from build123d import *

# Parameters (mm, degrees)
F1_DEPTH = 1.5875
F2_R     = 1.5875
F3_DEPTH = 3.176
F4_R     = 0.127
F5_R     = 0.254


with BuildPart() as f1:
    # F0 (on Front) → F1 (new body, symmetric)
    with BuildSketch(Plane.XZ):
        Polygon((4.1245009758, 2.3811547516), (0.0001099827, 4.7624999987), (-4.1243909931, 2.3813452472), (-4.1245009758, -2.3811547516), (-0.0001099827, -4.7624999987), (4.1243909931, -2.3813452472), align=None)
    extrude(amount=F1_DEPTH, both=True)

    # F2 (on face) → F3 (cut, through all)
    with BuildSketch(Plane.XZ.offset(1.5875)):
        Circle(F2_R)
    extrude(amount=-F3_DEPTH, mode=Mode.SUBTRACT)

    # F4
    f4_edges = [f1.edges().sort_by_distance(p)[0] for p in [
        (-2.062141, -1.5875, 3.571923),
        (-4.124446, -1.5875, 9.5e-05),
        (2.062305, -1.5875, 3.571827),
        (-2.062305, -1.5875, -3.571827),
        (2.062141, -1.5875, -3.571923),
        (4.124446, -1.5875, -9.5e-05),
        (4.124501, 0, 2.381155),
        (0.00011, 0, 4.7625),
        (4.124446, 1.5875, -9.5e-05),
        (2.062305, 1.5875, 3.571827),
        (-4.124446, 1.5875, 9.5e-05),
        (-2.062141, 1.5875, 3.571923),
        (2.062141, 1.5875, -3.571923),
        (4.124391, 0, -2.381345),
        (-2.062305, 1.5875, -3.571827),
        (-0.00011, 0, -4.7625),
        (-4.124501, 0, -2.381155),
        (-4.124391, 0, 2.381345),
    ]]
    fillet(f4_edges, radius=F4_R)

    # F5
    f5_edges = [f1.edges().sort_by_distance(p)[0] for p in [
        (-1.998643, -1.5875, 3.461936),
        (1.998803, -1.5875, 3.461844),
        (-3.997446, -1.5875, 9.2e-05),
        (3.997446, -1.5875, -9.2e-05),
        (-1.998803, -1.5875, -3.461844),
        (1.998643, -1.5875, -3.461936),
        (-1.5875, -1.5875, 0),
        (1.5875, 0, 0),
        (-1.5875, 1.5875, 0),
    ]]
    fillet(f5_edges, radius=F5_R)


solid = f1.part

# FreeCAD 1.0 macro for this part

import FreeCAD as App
import Part
import Sketcher
from FreeCAD import Vector
Q = App.Units.Quantity


def edges_at(feature, points):
    """Names of the edges that pass closest to the given points."""
    edges = feature.Shape.Edges
    near = lambda p: min(range(len(edges)), key=lambda i: edges[i].distToShape(Part.Vertex(*p))[0])
    return sorted({f"Edge{near(p) + 1}" for p in points})


def add_polygon(sketch, points):
    """Adds a closed chain of lines whose ends are joined by coincident constraints."""
    first, n = sketch.GeometryCount, len(points)
    for a, b in zip(points, points[1:] + points[:1]):
        sketch.addGeometry(Part.LineSegment(App.Vector(*a, 0), App.Vector(*b, 0)), False)
    for i in range(n):
        sketch.addConstraint(Sketcher.Constraint("Coincident", first + i, 2, first + (i + 1) % n, 1))

doc = App.newDocument("Part")
body = doc.addObject("PartDesign::Body", "Body")

# Sketch on XZ plane
sketch1 = body.newObject("Sketcher::SketchObject", "Sketch")
sketch1.AttachmentSupport = (doc.getObject("XZ_Plane"), [""])
sketch1.MapMode = "FlatFace"
add_polygon(sketch1, [(4.124501, 2.381155), (0.00011, 4.7625), (-4.124391, 2.381345), (-4.124501, -2.381155), (-0.00011, -4.7625), (4.124391, -2.381345)])  # lines 0-5
sketch1.addConstraint(Sketcher.Constraint("Symmetric", 0, 2, 3, 2, -1, 1))
sketch1.addConstraint(Sketcher.Constraint("Symmetric", 1, 2, 4, 2, -1, 1))
sketch1.addConstraint(Sketcher.Constraint("Symmetric", 2, 2, 5, 2, -1, 1))
sketch1.addConstraint(Sketcher.Constraint("Equal", 0, 1))
sketch1.addConstraint(Sketcher.Constraint("Equal", 1, 2))
sketch1.addConstraint(Sketcher.Constraint("Distance", 0, Q("0.1875 in")))
sketch1.addConstraint(Sketcher.Constraint("DistanceY", -1, 1, 0, 2, Q("0.1875 in")))
sketch1.addConstraint(Sketcher.Constraint("DistanceX", 2, 2, -1, 1, Q("4.124501 mm")))
sketch1.addConstraint(Sketcher.Constraint("DistanceX", 1, 2, 0, 2, Q("4.124501 mm")))
pad1 = body.newObject("PartDesign::Pad", "Pad")
pad1.Profile = sketch1
pad1.Length = Q("0.125 in")
pad1.Midplane = True

# Sketch on XZ plane
sketch2 = body.newObject("Sketcher::SketchObject", "Sketch001")
sketch2.AttachmentSupport = (doc.getObject("XZ_Plane"), [""])
sketch2.MapMode = "FlatFace"
sketch2.AttachmentOffset = App.Placement(Vector(0, 0, 0.0625 * 25.4), App.Rotation())
sketch2.addGeometry(Part.Circle(Vector(0, 0, 0), Vector(0, 0, 1), 1.5875), False)
sketch2.addConstraint(Sketcher.Constraint("Coincident", 0, 3, -1, 1))
sketch2.addConstraint(Sketcher.Constraint("Diameter", 0, Q("0.125 in")))
pocket1 = body.newObject("PartDesign::Pocket", "Pocket")
pocket1.Profile = sketch2
pocket1.Type = "ThroughAll"
doc.recompute()

fillet = body.newObject("PartDesign::Fillet", "Fillet")
fillet.Base = (pocket1, edges_at(pocket1, [
    (-2.062, -1.587, 3.572),
    (-4.124, -1.587, 0),
    (2.062, -1.587, 3.572),
    (-2.062, -1.587, -3.572),
    (2.062, -1.587, -3.572),
    (4.124, -1.587, 0),
    (4.125, 0, 2.381),
    (0, 0, 4.762),
    (4.124, 1.587, 0),
    (2.062, 1.587, 3.572),
    (-4.124, 1.587, 0),
    (-2.062, 1.587, 3.572),
    (2.062, 1.587, -3.572),
    (4.124, 0, -2.381),
    (-2.062, 1.587, -3.572),
    (0, 0, -4.762),
    (-4.125, 0, -2.381),
    (-4.124, 0, 2.381),
]))
fillet.Radius = Q("0.005 in")
doc.recompute()

fillet2 = body.newObject("PartDesign::Fillet", "Fillet001")
fillet2.Base = (fillet, edges_at(fillet, [
    (-1.999, -1.587, 3.462),
    (1.999, -1.587, 3.462),
    (-3.997, -1.587, 0),
    (3.997, -1.587, 0),
    (-1.999, -1.587, -3.462),
    (1.999, -1.587, -3.462),
    (-1.587, -1.587, 0),
    (1.587, 0, 0),
    (-1.587, 1.587, 0),
]))
fillet2.Radius = Q("0.01 in")

doc.recompute()
